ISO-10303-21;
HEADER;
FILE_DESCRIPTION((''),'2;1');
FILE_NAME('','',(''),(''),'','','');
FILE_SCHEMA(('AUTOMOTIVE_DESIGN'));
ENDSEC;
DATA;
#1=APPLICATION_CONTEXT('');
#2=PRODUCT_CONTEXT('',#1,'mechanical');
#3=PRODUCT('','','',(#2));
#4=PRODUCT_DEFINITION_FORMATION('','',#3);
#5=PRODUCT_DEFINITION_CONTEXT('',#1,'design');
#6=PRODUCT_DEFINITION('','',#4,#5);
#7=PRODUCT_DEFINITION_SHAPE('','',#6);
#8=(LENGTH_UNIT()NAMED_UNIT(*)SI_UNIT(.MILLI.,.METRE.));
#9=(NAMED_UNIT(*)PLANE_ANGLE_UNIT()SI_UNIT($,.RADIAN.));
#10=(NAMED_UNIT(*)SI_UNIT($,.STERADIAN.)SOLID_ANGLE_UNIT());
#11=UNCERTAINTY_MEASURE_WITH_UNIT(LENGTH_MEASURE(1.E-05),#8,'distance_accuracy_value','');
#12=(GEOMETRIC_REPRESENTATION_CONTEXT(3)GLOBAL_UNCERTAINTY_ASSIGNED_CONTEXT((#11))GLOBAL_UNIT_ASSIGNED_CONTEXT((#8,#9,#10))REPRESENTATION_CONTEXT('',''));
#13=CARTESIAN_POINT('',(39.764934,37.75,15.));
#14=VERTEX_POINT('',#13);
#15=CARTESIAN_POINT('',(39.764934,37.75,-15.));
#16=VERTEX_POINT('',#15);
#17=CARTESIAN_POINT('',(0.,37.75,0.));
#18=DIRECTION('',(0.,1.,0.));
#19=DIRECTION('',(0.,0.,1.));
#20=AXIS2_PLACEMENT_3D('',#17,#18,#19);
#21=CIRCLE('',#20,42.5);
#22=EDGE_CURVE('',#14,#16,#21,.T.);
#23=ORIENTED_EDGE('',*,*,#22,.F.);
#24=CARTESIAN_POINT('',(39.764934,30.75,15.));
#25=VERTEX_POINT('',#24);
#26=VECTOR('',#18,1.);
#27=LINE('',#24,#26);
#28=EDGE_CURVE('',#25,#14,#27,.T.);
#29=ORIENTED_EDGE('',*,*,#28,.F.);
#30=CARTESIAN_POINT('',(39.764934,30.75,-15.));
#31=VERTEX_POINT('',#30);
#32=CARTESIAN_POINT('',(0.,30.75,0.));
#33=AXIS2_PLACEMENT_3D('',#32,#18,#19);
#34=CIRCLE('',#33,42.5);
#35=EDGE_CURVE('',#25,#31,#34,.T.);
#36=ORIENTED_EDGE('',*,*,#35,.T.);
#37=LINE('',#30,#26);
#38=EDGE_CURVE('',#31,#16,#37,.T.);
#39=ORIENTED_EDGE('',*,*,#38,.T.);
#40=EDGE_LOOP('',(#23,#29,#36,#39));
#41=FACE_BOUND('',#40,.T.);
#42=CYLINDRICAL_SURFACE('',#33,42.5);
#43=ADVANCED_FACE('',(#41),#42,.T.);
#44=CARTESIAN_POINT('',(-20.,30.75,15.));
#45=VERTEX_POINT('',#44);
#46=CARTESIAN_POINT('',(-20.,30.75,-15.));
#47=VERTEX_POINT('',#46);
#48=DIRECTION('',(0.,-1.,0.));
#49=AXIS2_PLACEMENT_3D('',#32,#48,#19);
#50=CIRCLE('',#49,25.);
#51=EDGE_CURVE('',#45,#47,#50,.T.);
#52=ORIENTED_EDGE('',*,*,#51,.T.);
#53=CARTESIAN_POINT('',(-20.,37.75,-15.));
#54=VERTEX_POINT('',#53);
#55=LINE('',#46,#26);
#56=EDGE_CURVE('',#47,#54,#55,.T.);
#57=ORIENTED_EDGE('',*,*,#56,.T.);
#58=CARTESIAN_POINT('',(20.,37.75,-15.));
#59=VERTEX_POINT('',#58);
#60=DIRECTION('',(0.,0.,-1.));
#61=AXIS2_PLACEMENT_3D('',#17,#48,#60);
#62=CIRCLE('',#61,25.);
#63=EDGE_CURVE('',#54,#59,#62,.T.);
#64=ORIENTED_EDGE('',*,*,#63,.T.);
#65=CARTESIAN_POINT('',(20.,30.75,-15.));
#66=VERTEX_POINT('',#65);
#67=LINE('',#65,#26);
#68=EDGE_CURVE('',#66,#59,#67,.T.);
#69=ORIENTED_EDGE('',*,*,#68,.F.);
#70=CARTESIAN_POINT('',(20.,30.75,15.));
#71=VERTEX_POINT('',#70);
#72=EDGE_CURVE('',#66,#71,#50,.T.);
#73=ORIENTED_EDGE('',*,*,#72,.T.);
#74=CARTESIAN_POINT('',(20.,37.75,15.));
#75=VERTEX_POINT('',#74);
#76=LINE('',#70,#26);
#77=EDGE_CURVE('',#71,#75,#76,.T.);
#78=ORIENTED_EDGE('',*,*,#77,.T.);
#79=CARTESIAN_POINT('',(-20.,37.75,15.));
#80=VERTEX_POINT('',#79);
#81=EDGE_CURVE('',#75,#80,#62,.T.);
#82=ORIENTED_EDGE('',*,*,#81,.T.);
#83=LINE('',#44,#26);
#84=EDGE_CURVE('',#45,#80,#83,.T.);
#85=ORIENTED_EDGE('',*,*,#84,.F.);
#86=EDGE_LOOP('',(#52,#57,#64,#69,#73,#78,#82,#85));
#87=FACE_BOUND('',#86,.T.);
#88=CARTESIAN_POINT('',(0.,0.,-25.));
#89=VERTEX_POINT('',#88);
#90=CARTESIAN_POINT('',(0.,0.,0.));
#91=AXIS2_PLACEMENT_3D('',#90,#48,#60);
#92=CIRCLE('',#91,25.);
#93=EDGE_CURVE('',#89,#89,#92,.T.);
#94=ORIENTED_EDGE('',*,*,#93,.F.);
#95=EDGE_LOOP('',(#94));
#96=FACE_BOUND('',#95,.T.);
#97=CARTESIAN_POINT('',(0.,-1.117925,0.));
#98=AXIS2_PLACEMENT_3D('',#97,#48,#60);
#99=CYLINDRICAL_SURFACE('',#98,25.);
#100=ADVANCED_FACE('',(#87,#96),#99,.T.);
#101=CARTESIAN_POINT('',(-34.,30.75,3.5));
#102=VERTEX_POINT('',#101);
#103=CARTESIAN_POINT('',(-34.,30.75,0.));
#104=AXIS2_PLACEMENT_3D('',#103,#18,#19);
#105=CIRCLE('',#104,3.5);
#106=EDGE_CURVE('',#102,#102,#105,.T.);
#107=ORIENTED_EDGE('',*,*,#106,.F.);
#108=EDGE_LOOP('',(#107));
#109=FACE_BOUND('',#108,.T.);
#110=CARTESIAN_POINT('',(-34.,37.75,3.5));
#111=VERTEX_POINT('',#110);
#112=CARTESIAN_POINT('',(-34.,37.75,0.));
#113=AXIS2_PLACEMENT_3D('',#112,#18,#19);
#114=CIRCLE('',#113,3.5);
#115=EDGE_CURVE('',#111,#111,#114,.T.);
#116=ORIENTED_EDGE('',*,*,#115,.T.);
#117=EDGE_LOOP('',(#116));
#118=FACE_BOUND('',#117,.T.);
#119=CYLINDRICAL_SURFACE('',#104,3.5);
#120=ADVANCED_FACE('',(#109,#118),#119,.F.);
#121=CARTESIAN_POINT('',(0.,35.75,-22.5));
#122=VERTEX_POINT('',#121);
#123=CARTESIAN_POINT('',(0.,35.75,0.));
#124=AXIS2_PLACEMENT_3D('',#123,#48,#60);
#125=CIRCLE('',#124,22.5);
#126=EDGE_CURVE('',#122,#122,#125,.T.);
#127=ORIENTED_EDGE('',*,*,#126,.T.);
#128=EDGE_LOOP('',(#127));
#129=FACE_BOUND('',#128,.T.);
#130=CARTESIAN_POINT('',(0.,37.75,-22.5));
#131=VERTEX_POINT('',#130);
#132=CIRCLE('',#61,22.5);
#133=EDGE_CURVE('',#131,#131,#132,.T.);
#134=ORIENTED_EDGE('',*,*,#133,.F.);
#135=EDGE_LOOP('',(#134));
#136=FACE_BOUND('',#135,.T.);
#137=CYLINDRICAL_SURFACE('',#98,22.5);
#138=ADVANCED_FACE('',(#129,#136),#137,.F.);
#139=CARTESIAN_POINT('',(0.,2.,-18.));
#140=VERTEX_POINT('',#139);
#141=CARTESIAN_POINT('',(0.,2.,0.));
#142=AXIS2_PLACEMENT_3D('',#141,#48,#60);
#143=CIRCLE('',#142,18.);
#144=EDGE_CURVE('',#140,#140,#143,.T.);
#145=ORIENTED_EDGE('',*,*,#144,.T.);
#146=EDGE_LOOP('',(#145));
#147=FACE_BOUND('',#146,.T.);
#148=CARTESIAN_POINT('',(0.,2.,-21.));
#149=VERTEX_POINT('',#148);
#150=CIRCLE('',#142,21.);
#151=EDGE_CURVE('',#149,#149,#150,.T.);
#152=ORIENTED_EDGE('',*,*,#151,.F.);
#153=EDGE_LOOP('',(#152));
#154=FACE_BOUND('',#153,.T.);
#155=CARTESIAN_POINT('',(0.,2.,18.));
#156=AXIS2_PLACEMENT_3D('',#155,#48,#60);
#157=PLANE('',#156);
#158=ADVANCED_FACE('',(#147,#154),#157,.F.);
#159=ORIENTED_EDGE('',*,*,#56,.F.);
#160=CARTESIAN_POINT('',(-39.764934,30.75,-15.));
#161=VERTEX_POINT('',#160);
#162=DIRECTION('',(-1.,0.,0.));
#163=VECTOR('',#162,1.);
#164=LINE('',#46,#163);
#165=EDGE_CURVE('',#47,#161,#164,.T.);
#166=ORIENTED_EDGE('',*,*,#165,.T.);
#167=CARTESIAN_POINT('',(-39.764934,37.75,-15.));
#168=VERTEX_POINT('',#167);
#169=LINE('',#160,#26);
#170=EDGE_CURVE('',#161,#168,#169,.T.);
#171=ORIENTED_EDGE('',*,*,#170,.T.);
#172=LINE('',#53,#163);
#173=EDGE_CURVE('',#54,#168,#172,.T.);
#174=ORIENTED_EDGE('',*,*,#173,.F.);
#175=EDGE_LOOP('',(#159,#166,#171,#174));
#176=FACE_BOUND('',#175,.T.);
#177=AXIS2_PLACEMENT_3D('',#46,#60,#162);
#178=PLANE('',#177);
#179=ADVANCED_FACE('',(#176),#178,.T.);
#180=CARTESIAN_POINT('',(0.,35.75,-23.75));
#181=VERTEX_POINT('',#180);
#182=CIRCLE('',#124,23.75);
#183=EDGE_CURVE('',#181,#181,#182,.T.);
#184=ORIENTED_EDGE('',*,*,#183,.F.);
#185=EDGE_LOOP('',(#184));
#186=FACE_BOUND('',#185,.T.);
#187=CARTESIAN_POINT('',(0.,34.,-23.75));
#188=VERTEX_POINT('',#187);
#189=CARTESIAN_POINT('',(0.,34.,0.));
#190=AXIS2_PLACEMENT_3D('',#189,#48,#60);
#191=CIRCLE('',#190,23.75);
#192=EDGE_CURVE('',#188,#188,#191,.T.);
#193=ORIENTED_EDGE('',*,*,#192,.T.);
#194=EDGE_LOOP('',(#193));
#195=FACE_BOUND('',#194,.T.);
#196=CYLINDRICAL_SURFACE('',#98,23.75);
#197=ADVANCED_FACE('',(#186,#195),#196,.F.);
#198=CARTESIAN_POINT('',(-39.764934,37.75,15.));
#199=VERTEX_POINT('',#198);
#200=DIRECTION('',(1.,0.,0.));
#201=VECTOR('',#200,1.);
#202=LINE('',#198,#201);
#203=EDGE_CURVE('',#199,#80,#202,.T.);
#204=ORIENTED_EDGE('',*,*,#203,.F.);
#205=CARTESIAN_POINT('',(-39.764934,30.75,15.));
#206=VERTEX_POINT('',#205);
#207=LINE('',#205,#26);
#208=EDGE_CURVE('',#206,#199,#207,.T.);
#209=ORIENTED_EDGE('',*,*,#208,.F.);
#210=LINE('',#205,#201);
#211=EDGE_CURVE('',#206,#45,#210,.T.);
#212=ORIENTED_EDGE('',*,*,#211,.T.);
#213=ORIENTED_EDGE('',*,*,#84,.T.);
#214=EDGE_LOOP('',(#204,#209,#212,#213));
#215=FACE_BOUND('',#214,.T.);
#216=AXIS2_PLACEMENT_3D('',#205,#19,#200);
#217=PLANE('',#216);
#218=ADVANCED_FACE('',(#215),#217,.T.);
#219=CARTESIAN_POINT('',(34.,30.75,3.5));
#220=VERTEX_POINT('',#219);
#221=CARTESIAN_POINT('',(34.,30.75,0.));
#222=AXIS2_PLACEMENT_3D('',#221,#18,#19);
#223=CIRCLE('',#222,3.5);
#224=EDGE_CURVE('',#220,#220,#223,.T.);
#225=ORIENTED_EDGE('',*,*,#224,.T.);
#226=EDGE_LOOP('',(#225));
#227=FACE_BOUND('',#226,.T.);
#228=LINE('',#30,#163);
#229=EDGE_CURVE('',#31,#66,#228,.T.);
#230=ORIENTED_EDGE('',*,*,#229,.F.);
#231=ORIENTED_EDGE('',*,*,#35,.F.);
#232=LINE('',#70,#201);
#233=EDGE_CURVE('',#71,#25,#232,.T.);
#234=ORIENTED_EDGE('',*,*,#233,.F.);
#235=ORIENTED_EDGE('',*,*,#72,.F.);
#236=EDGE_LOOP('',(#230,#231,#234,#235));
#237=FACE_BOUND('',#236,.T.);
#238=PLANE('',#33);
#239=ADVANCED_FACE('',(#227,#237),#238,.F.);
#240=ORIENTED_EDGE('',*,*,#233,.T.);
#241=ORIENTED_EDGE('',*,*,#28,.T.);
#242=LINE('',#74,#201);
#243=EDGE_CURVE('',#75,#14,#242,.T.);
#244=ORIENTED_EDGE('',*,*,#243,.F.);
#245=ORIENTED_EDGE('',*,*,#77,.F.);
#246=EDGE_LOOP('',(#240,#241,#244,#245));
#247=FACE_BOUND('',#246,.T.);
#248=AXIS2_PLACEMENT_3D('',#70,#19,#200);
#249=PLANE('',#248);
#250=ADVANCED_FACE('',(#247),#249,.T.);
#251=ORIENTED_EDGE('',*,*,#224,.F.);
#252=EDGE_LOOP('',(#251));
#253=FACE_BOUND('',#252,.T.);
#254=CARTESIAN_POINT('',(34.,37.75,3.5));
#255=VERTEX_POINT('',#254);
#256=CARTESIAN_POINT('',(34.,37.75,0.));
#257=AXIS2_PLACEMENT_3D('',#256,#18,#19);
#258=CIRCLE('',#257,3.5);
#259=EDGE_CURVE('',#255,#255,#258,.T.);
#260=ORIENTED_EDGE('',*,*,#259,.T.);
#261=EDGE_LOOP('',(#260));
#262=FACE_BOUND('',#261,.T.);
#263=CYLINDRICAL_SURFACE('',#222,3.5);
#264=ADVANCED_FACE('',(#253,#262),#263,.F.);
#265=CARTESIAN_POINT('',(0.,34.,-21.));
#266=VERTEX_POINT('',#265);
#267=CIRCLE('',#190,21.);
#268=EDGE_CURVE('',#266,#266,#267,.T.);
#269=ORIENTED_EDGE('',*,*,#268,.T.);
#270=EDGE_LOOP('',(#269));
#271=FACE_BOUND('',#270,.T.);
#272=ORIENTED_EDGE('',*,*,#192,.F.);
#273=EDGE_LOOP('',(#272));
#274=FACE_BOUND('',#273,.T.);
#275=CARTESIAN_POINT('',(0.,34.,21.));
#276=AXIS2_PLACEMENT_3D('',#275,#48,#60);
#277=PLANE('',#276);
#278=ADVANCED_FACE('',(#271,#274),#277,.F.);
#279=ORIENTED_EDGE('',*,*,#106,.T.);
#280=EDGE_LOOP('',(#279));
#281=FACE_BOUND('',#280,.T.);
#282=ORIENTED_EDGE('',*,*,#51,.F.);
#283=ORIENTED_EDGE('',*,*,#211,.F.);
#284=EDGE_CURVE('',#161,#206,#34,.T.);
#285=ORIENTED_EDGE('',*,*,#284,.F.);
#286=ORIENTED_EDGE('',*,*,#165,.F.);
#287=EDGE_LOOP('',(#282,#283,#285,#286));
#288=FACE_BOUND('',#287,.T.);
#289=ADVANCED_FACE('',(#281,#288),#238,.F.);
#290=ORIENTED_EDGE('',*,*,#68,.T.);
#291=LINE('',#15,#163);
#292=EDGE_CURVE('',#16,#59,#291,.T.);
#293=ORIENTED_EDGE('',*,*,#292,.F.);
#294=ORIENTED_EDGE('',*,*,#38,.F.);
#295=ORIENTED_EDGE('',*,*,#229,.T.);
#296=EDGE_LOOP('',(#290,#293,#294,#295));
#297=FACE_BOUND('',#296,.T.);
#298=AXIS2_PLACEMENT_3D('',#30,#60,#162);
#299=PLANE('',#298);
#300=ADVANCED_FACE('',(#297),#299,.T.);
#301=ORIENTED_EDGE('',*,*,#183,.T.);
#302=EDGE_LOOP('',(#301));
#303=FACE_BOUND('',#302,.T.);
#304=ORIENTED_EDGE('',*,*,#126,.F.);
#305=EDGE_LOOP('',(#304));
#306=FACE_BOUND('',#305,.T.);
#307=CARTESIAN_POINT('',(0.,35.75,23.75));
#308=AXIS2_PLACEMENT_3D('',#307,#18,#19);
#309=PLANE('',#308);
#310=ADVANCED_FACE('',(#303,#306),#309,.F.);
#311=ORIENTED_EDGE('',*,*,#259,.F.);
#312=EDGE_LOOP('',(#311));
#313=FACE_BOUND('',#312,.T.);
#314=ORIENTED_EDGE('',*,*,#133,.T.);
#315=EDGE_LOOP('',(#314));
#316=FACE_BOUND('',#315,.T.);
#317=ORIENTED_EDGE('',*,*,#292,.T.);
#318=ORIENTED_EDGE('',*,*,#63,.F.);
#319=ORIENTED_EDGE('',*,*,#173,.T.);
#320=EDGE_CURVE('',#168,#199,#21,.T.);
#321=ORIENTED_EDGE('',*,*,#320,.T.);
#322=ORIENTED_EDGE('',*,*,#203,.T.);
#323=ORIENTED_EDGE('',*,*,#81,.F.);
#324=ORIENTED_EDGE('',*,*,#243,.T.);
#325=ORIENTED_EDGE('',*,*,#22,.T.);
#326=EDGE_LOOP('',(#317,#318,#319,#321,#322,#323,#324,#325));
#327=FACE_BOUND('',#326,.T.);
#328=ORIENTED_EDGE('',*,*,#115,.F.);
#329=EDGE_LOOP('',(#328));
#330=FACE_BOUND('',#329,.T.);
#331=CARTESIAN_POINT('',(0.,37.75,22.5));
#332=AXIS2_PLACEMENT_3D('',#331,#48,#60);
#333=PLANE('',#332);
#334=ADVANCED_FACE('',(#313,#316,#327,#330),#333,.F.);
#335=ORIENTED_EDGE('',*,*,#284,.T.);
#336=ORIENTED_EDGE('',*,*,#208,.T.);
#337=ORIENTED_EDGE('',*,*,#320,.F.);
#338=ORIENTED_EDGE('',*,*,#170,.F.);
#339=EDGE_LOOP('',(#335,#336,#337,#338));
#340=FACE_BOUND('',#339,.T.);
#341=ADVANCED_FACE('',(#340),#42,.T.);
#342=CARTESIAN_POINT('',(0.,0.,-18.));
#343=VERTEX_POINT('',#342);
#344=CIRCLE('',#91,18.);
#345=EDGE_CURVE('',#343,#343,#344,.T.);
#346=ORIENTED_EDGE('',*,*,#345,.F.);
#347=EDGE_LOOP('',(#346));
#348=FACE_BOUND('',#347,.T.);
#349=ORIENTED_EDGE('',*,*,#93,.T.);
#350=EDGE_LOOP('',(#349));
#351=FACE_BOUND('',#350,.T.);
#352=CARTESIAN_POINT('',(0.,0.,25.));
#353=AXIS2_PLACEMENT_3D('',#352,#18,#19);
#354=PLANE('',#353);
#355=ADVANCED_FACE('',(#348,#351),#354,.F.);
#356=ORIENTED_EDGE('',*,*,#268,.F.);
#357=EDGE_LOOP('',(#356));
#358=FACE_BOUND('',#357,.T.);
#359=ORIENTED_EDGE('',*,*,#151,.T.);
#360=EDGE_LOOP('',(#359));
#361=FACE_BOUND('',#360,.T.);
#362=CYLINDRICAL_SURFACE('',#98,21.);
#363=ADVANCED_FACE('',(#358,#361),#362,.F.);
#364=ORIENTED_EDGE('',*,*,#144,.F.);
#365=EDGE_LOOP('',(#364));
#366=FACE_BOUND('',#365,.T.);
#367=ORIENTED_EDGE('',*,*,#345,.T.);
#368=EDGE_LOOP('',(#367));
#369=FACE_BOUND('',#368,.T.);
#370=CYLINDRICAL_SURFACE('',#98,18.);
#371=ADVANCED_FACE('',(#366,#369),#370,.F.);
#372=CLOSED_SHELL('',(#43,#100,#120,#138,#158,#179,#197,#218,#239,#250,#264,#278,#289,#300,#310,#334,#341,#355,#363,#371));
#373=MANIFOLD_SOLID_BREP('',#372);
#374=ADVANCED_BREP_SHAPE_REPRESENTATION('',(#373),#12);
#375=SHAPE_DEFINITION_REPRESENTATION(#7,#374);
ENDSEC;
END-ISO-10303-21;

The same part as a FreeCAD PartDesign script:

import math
import FreeCAD as App
import Part
import Sketcher
Q = App.Units.Quantity


def add_polygon(sketch, points):
    """Adds a closed chain of lines whose ends are joined by coincident constraints."""
    first, n = sketch.GeometryCount, len(points)
    for a, b in zip(points, points[1:] + points[:1]):
        sketch.addGeometry(Part.LineSegment(App.Vector(*a, 0), App.Vector(*b, 0)), False)
    for i in range(n):
        sketch.addConstraint(Sketcher.Constraint("Coincident", first + i, 2, first + (i + 1) % n, 1))

doc = App.newDocument("Part")
body = doc.addObject("PartDesign::Body", "Body")

sketch1 = body.newObject("Sketcher::SketchObject", "Sketch")
sketch1.AttachmentSupport = (doc.getObject("YZ_Plane"), [""])
sketch1.MapMode = "FlatFace"
add_polygon(sketch1, [(37.75, 25), (0, 25), (0, 18), (2, 18), (2, 21), (34, 21), (34, 23.75), (35.75, 23.75), (35.75, 22.5), (37.75, 22.5)])
sketch1.addConstraint(Sketcher.Constraint("Horizontal", 0))
sketch1.addConstraint(Sketcher.Constraint("Vertical", 1))
sketch1.addConstraint(Sketcher.Constraint("Horizontal", 2))
sketch1.addConstraint(Sketcher.Constraint("Vertical", 3))
sketch1.addConstraint(Sketcher.Constraint("Horizontal", 4))
sketch1.addConstraint(Sketcher.Constraint("Vertical", 5))
sketch1.addConstraint(Sketcher.Constraint("Horizontal", 6))
sketch1.addConstraint(Sketcher.Constraint("Vertical", 7))
sketch1.addConstraint(Sketcher.Constraint("Horizontal", 8))
sketch1.addConstraint(Sketcher.Constraint("Vertical", 9))
sketch1.addConstraint(Sketcher.Constraint("PointOnObject", 0, 2, -2))
sketch1.addConstraint(Sketcher.Constraint("Equal", 2, 8))
sketch1.addConstraint(Sketcher.Constraint("DistanceX", 2, 1, 2, 2, Q("2 mm")))
sketch1.addConstraint(Sketcher.Constraint("DistanceX", 4, 1, 4, 2, Q("32 mm")))
sketch1.addConstraint(Sketcher.Constraint("DistanceY", 1, 2, 1, 1, Q("7 mm")))
sketch1.addConstraint(Sketcher.Constraint("DistanceY", 3, 1, 3, 2, Q("3 mm")))
sketch1.addConstraint(Sketcher.Constraint("DistanceY", 9, 1, 9, 2, Q("2.5 mm")))
sketch1.addConstraint(Sketcher.Constraint("DistanceY", -1, 1, 0, 2, Q("25 mm")))
sketch1.addConstraint(Sketcher.Constraint("DistanceX", 0, 2, 0, 1, Q("37.75 mm")))
sketch1.addConstraint(Sketcher.Constraint("DistanceY", 5, 1, 5, 2, Q("2.75 mm")))
revolution = body.newObject("PartDesign::Revolution", "Revolution")
revolution.Profile = sketch1
revolution.ReferenceAxis = (sketch1, ["H_Axis"])
revolution.Angle = 360

sketch2 = body.newObject("Sketcher::SketchObject", "Sketch001")
sketch2.AttachmentSupport = (doc.getObject("XZ_Plane"), [""])
sketch2.MapMode = "FlatFace"
sketch2.AttachmentOffset = App.Placement(App.Vector(0, 0, -30.75), App.Rotation())
sketch2.addGeometry(Part.LineSegment(App.Vector(-39.764934, 15, 0), App.Vector(-20, 15, 0)), False)
sketch2.addGeometry(Part.ArcOfCircle(Part.Circle(App.Vector(0, 0, 0), App.Vector(0, 0, 1), 25), math.radians(143.130102), math.radians(216.869898)), False)
sketch2.addGeometry(Part.LineSegment(App.Vector(-20, -15, 0), App.Vector(-39.764934, -15, 0)), False)
sketch2.addGeometry(Part.ArcOfCircle(Part.Circle(App.Vector(0, 0, 0), App.Vector(0, 0, 1), 42.5), math.radians(159.332684), math.radians(200.667316)), False)
sketch2.addGeometry(Part.LineSegment(App.Vector(39.764934, -15, 0), App.Vector(20, -15, 0)), False)
sketch2.addGeometry(Part.ArcOfCircle(Part.Circle(App.Vector(0, 0, 0), App.Vector(0, 0, 1), 25), math.radians(-36.869898), math.radians(36.869898)), False)
sketch2.addGeometry(Part.LineSegment(App.Vector(20, 15, 0), App.Vector(39.764934, 15, 0)), False)
sketch2.addGeometry(Part.ArcOfCircle(Part.Circle(App.Vector(0, 0, 0), App.Vector(0, 0, 1), 42.5), math.radians(-20.667316), math.radians(20.667316)), False)
sketch2.addConstraint(Sketcher.Constraint("Coincident", 0, 2, 1, 1))
sketch2.addConstraint(Sketcher.Constraint("Coincident", 1, 2, 2, 1))
sketch2.addConstraint(Sketcher.Constraint("Coincident", 2, 2, 3, 2))
sketch2.addConstraint(Sketcher.Constraint("Coincident", 3, 1, 0, 1))
sketch2.addConstraint(Sketcher.Constraint("Coincident", 4, 2, 5, 1))
sketch2.addConstraint(Sketcher.Constraint("Coincident", 5, 2, 6, 1))
sketch2.addConstraint(Sketcher.Constraint("Coincident", 6, 2, 7, 2))
sketch2.addConstraint(Sketcher.Constraint("Coincident", 7, 1, 4, 1))
sketch2.addConstraint(Sketcher.Constraint("Horizontal", 0))
sketch2.addConstraint(Sketcher.Constraint("Horizontal", 2))
sketch2.addConstraint(Sketcher.Constraint("Horizontal", 4))
sketch2.addConstraint(Sketcher.Constraint("Horizontal", 6))
sketch2.addConstraint(Sketcher.Constraint("Coincident", 1, 3, -1, 1))
sketch2.addConstraint(Sketcher.Constraint("Coincident", 3, 3, -1, 1))
sketch2.addConstraint(Sketcher.Constraint("Coincident", 5, 3, -1, 1))
sketch2.addConstraint(Sketcher.Constraint("Coincident", 7, 3, -1, 1))
sketch2.addConstraint(Sketcher.Constraint("Equal", 1, 5))
sketch2.addConstraint(Sketcher.Constraint("Equal", 3, 7))
sketch2.addConstraint(Sketcher.Constraint("Horizontal", 2, 2, 4, 2))
sketch2.addConstraint(Sketcher.Constraint("Horizontal", 3, 1, 5, 2))
sketch2.addConstraint(Sketcher.Constraint("Vertical", 0, 2, 1, 2))
sketch2.addConstraint(Sketcher.Constraint("Radius", 1, Q("25 mm")))
sketch2.addConstraint(Sketcher.Constraint("Radius", 3, Q("42.5 mm")))
sketch2.addConstraint(Sketcher.Constraint("DistanceX", 0, 2, -1, 1, Q("20 mm")))
pad1 = body.newObject("PartDesign::Pad", "Pad")
pad1.Profile = sketch2
pad1.Length = 7
pad1.Reversed = True

sketch3 = body.newObject("Sketcher::SketchObject", "Sketch002")
sketch3.AttachmentSupport = (doc.getObject("XZ_Plane"), [""])
sketch3.MapMode = "FlatFace"
sketch3.AttachmentOffset = App.Placement(App.Vector(0, 0, -37.75), App.Rotation())
sketch3.addGeometry(Part.Circle(App.Vector(34, 0, 0), App.Vector(0, 0, 1), 3.5), False)
sketch3.addGeometry(Part.Circle(App.Vector(-34, 0, 0), App.Vector(0, 0, 1), 3.5), False)
sketch3.addConstraint(Sketcher.Constraint("Equal", 0, 1))
sketch3.addConstraint(Sketcher.Constraint("Symmetric", 0, 3, 1, 3, -1, 1))
sketch3.addConstraint(Sketcher.Constraint("PointOnObject", 0, 3, -1))
sketch3.addConstraint(Sketcher.Constraint("Diameter", 0, Q("7 mm")))
sketch3.addConstraint(Sketcher.Constraint("DistanceX", -1, 1, 0, 3, Q("34 mm")))
pocket1 = body.newObject("PartDesign::Pocket", "Pocket")
pocket1.Profile = sketch3
pocket1.Length = 7
pocket1.Reversed = True

doc.recompute()
